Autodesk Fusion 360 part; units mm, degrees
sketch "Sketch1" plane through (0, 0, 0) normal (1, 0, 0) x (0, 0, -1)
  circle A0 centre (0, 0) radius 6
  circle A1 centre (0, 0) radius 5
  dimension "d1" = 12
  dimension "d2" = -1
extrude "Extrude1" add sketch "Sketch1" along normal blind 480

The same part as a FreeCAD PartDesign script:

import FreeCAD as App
import Part
import Sketcher
from FreeCAD import Vector
Q = App.Units.Quantity

doc = App.newDocument("Part")
params = doc.addObject("Spreadsheet::Sheet", "Params")
for row, (alias, value) in enumerate([
    ("sketch1_diameter", "12 mm"),
    ("sketch1_diameter2", "10 mm"),
    ("pad1_length", "480 mm"),
], start=1):
    params.set(f"A{row}", alias)
    params.set(f"B{row}", "=" + value)
    params.setAlias(f"B{row}", alias)

body = doc.addObject("PartDesign::Body", "Body")

sketch1 = doc.addObject("Sketcher::SketchObject", "Sketch")
body.addObject(sketch1)
sketch1.AttachmentSupport = (doc.YZ_Plane, [""])
sketch1.MapMode = "FlatFace"
sketch1.addGeometry(Part.Circle(Vector(0, 0, 0), Vector(0, 0, 1), 6), False)
sketch1.addGeometry(Part.Circle(Vector(0, 0, 0), Vector(0, 0, 1), 5), False)
sketch1.addConstraint(Sketcher.Constraint("Coincident", 0, 3, -1, 1))
sketch1.addConstraint(Sketcher.Constraint("Coincident", 1, 3, -1, 1))
sketch1.addConstraint(Sketcher.Constraint("Diameter", 0, Q("12 mm")))
sketch1.addConstraint(Sketcher.Constraint("Diameter", 1, Q("10 mm")))
sketch1.setExpression("Constraints[2]", "Params.sketch1_diameter")
sketch1.setExpression("Constraints[3]", "Params.sketch1_diameter2")
pad1 = doc.addObject("PartDesign::Pad", "Pad")
body.addObject(pad1)
pad1.Profile = sketch1
pad1.setExpression("Length", "Params.pad1_length")

doc.recompute()
